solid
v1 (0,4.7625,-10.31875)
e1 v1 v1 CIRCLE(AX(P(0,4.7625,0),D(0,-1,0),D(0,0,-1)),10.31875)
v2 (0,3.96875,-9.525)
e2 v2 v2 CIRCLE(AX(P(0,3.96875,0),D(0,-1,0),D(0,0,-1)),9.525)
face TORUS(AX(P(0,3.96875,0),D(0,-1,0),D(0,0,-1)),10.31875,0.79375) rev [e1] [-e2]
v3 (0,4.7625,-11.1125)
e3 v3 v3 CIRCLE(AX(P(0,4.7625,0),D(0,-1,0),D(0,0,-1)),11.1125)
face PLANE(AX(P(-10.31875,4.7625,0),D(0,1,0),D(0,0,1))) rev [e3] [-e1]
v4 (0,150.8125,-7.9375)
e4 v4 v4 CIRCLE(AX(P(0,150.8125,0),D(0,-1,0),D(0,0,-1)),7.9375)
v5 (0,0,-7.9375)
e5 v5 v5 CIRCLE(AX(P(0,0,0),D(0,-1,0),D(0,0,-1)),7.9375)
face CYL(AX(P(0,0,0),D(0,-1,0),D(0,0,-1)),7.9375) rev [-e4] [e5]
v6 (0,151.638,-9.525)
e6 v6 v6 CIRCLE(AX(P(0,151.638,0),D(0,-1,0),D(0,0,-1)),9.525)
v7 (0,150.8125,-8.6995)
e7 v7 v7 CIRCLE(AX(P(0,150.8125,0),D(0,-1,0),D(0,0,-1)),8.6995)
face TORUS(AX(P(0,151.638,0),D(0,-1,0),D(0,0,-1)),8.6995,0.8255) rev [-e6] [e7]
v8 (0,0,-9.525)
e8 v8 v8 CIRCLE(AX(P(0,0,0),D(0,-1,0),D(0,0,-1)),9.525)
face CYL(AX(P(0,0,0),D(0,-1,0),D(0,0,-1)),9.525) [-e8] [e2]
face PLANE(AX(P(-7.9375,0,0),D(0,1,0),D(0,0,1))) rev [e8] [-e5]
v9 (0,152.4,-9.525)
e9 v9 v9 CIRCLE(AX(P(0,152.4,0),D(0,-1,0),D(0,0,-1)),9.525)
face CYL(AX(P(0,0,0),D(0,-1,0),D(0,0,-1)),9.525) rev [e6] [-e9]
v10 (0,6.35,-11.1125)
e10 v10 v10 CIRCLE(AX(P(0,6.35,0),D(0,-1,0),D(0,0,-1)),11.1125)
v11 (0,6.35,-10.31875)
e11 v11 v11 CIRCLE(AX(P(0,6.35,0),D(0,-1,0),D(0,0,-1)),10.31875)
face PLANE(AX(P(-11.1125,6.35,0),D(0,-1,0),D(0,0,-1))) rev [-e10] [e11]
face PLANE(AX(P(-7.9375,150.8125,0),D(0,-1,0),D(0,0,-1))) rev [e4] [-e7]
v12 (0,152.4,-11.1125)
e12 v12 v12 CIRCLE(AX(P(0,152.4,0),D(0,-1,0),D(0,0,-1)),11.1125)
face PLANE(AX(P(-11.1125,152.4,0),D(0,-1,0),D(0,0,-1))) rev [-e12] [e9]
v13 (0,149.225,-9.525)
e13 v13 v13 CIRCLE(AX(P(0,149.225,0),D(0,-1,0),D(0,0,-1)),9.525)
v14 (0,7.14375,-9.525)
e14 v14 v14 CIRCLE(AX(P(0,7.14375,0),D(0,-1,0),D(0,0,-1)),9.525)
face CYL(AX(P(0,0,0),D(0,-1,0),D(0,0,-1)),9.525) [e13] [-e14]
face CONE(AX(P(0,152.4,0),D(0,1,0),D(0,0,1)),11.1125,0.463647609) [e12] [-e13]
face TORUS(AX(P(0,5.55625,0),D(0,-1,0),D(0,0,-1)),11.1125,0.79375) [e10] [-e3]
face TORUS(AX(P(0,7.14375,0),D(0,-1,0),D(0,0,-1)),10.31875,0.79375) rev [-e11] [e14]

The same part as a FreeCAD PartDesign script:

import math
import FreeCAD as App
import Part
import Sketcher
from FreeCAD import Vector
Q = App.Units.Quantity

doc = App.newDocument("Part")
body = doc.addObject("PartDesign::Body", "Body")

# Sketch on XY plane
sketch1 = doc.addObject("Sketcher::SketchObject", "Sketch")
body.addObject(sketch1)
sketch1.AttachmentSupport = (doc.XY_Plane, [""])
sketch1.MapMode = "FlatFace"
sketch1.addGeometry([
    Part.LineSegment(Vector(-7.9, 0, 0), Vector(-7.9, 150.8, 0)),  # 0
    Part.LineSegment(Vector(-7.9, 150.8, 0), Vector(-8.7, 150.8, 0)),  # 1
    Part.ArcOfCircle(Part.Circle(Vector(-8.7, 151.6, 0), Vector(0, 0, 1), 0.8), math.radians(180), math.radians(270)),  # 2
    Part.LineSegment(Vector(-9.5, 151.6, 0), Vector(-9.5, 152.4, 0)),  # 3
    Part.LineSegment(Vector(-9.5, 152.4, 0), Vector(-11.1, 152.4, 0)),  # 4
    Part.LineSegment(Vector(-11.1, 152.4, 0), Vector(-9.5, 149.2, 0)),  # 5
    Part.LineSegment(Vector(-9.5, 149.2, 0), Vector(-9.5, 7.1, 0)),  # 6
    Part.ArcOfCircle(Part.Circle(Vector(-10.3, 7.1, 0), Vector(0, 0, 1), 0.8), math.radians(-90), math.radians(0)),  # 7
    Part.LineSegment(Vector(-10.3, 6.3, 0), Vector(-11.1, 6.3, 0)),  # 8
    Part.ArcOfCircle(Part.Circle(Vector(-11.1, 5.6, 0), Vector(0, 0, 1), 0.8), math.radians(90), math.radians(270)),  # 9
    Part.LineSegment(Vector(-11.1, 4.8, 0), Vector(-10.3, 4.8, 0)),  # 10
    Part.ArcOfCircle(Part.Circle(Vector(-10.3, 4, 0), Vector(0, 0, 1), 0.8), math.radians(0), math.radians(90)),  # 11
    Part.LineSegment(Vector(-9.5, 4, 0), Vector(-9.5, 0, 0)),  # 12
    Part.LineSegment(Vector(-9.5, 0, 0), Vector(-7.9, 0, 0)),  # 13
], False)
sketch1.addConstraint([
    Sketcher.Constraint("Coincident", 0, 2, 1, 1),
    Sketcher.Constraint("Tangent", 1, 2, 2, 2),
    Sketcher.Constraint("Tangent", 2, 1, 3, 1),
    Sketcher.Constraint("Coincident", 3, 2, 4, 1),
    Sketcher.Constraint("Coincident", 4, 2, 5, 1),
    Sketcher.Constraint("Coincident", 5, 2, 6, 1),
    Sketcher.Constraint("Tangent", 6, 2, 7, 2),
    Sketcher.Constraint("Tangent", 7, 1, 8, 1),
    Sketcher.Constraint("Tangent", 8, 2, 9, 1),
    Sketcher.Constraint("Tangent", 9, 2, 10, 1),
    Sketcher.Constraint("Tangent", 10, 2, 11, 2),
    Sketcher.Constraint("Tangent", 11, 1, 12, 1),
    Sketcher.Constraint("Coincident", 12, 2, 13, 1),
    Sketcher.Constraint("Coincident", 13, 2, 0, 1),
    Sketcher.Constraint("Vertical", 0),
    Sketcher.Constraint("Horizontal", 1),
    Sketcher.Constraint("Vertical", 3),
    Sketcher.Constraint("Horizontal", 4),
    Sketcher.Constraint("Vertical", 6),
    Sketcher.Constraint("Horizontal", 8),
    Sketcher.Constraint("Horizontal", 10),
    Sketcher.Constraint("Vertical", 12),
    Sketcher.Constraint("Horizontal", 13),
    Sketcher.Constraint("Equal", 7, 9),
    Sketcher.Constraint("Equal", 9, 11),
    Sketcher.Constraint("PointOnObject", 12, 2, -1),
    Sketcher.Constraint("Vertical", 7, 3, 11, 3),
    Sketcher.Constraint("Vertical", 9, 3, 4, 2),
    Sketcher.Constraint("Vertical", 3, 2, 5, 2),
    Sketcher.Constraint("Equal", 4, 13),
    Sketcher.Constraint("Equal", 1, 3),
    Sketcher.Constraint("DistanceY", -1, 1, 3, 2, Q("6 in")),
    Sketcher.Constraint("Radius", 7, Q("0.03125 in")),
    Sketcher.Constraint("DistanceX", 1, 2, 1, 1, Q("0.03 in")),
    Sketcher.Constraint("Radius", 2, Q("0.0325 in")),
    Sketcher.Constraint("DistanceY", 6, 2, 6, 1, Q("5.59375 in")),
    Sketcher.Constraint("DistanceY", 12, 2, 12, 1, Q("0.15625 in")),
    Sketcher.Constraint("DistanceX", 7, 3, -1, 1, Q("0.40625 in")),
])
revolution = doc.addObject("PartDesign::Revolution", "Revolution")
body.addObject(revolution)
revolution.Profile = sketch1
revolution.ReferenceAxis = (sketch1, ["V_Axis"])
revolution.Angle = 360

doc.recompute()
